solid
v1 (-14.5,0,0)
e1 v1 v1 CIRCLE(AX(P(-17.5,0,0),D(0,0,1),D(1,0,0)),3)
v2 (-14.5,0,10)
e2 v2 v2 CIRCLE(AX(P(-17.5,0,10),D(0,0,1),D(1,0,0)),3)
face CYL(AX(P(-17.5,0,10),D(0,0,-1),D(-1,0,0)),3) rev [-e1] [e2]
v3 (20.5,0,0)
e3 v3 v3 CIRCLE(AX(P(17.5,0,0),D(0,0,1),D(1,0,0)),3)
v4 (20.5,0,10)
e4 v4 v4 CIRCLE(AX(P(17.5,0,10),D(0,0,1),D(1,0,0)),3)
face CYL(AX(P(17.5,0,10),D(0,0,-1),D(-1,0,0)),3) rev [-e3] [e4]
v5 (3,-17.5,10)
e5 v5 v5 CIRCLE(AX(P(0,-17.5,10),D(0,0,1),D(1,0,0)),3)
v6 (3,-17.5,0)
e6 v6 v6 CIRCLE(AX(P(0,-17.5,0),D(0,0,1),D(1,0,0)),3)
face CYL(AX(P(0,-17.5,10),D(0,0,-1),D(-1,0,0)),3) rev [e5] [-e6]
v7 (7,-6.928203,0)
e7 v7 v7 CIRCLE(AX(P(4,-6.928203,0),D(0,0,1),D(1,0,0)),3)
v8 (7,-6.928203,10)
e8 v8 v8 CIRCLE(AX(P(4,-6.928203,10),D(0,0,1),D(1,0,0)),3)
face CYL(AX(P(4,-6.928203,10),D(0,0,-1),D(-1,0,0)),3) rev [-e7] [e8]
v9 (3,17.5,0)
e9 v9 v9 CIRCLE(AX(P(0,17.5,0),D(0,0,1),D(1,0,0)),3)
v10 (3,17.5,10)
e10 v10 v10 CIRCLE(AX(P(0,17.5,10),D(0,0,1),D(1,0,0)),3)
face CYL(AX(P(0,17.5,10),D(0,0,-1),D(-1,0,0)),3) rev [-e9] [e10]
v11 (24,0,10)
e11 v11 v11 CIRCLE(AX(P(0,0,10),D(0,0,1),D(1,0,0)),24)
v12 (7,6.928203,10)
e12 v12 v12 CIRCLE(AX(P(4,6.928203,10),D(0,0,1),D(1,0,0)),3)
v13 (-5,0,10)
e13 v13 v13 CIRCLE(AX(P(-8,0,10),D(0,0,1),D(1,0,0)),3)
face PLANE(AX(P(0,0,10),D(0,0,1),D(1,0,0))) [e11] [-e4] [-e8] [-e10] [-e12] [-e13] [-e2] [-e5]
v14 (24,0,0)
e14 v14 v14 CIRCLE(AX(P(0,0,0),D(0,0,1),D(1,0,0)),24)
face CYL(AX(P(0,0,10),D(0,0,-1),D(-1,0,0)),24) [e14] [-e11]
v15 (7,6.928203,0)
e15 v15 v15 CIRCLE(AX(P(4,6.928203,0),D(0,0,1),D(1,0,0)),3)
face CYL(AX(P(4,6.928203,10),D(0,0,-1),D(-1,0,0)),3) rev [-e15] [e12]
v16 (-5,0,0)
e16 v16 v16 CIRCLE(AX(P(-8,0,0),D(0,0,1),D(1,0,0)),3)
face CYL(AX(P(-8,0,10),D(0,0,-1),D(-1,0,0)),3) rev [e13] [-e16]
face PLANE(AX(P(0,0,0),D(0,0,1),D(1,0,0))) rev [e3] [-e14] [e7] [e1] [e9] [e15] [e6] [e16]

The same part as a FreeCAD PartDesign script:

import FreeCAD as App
import Part
import Sketcher
from FreeCAD import Vector
Q = App.Units.Quantity

doc = App.newDocument("Part")
body = doc.addObject("PartDesign::Body", "Body")

# Sketch on XY plane
sketch1 = doc.addObject("Sketcher::SketchObject", "Sketch")
body.addObject(sketch1)
sketch1.AttachmentSupport = (doc.XY_Plane, [""])
sketch1.MapMode = "FlatFace"
sketch1.addGeometry([
    Part.Circle(Vector(0, 0, 0), Vector(0, 0, 1), 24),  # 0
    Part.Circle(Vector(0, -17.5, 0), Vector(0, 0, 1), 3),  # 1
    Part.Circle(Vector(4, -6.928203, 0), Vector(0, 0, 1), 3),  # 2
    Part.Circle(Vector(-17.5, 0, 0), Vector(0, 0, 1), 3),  # 3
    Part.Circle(Vector(-8, 0, 0), Vector(0, 0, 1), 3),  # 4
    Part.Circle(Vector(4, 6.928203, 0), Vector(0, 0, 1), 3),  # 5
    Part.Circle(Vector(17.5, 0, 0), Vector(0, 0, 1), 3),  # 6
    Part.Circle(Vector(0, 17.5, 0), Vector(0, 0, 1), 3),  # 7
], False)
sketch1.addConstraint([
    Sketcher.Constraint("Coincident", 0, 3, -1, 1),
    Sketcher.Constraint("Equal", 1, 2),
    Sketcher.Constraint("Equal", 2, 3),
    Sketcher.Constraint("Equal", 3, 4),
    Sketcher.Constraint("Equal", 4, 5),
    Sketcher.Constraint("Equal", 5, 6),
    Sketcher.Constraint("Equal", 6, 7),
    Sketcher.Constraint("Symmetric", 3, 3, 6, 3, -1, 1),
    Sketcher.Constraint("Symmetric", 1, 3, 7, 3, -1, 1),
    Sketcher.Constraint("Symmetric", 2, 3, 5, 3, -1),
    Sketcher.Constraint("PointOnObject", 1, 3, -2),
    Sketcher.Constraint("PointOnObject", 3, 3, -1),
    Sketcher.Constraint("PointOnObject", 4, 3, -1),
    Sketcher.Constraint("Diameter", 0, Q("48 mm")),
    Sketcher.Constraint("Diameter", 1, Q("6 mm")),
    Sketcher.Constraint("DistanceX", -1, 1, 2, 3, Q("4 mm")),
    Sketcher.Constraint("DistanceX", 4, 3, -1, 1, Q("8 mm")),
    Sketcher.Constraint("DistanceY", 1, 3, -1, 1, Q("17.5 mm")),
    Sketcher.Constraint("DistanceX", 3, 3, -1, 1, Q("17.5 mm")),
    Sketcher.Constraint("DistanceY", 2, 3, -1, 1, Q("6.928203 mm")),
])
pad1 = doc.addObject("PartDesign::Pad", "Pad")
body.addObject(pad1)
pad1.Profile = sketch1
pad1.Length = 10

doc.recompute()
